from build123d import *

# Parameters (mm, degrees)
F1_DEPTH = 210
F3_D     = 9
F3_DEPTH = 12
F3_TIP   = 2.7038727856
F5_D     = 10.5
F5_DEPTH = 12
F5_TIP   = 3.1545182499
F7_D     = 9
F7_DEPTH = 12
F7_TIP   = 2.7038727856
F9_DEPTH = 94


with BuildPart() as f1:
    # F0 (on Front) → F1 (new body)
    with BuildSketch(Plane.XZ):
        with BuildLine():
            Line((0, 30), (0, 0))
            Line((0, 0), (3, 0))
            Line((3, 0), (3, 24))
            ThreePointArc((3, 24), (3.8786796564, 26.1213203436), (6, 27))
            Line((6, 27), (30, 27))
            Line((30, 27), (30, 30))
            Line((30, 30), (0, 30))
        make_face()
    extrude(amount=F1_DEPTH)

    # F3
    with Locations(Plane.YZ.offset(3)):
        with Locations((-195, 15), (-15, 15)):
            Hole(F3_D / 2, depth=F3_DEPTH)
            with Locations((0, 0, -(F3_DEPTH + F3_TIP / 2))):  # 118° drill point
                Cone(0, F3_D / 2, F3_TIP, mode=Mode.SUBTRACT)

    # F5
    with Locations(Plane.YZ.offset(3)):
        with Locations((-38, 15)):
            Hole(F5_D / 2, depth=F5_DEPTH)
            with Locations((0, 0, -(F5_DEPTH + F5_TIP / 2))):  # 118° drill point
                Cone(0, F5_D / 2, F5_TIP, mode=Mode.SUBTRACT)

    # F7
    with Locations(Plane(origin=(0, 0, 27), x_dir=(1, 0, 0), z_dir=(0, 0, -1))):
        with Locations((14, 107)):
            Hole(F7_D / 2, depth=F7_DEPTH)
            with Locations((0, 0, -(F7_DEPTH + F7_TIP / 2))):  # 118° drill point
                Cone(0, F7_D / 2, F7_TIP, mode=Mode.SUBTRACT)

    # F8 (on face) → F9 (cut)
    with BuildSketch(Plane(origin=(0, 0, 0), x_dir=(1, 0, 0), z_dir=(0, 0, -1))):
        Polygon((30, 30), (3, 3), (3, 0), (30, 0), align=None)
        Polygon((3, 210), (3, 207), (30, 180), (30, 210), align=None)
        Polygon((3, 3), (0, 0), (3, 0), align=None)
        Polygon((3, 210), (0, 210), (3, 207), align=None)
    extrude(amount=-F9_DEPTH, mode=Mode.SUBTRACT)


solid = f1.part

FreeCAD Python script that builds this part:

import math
import FreeCAD as App
import Part
import Sketcher


def add_polygon(sketch, points):
    """Adds a closed chain of lines whose ends are joined by coincident constraints."""
    first, n = sketch.GeometryCount, len(points)
    for a, b in zip(points, points[1:] + points[:1]):
        sketch.addGeometry(Part.LineSegment(App.Vector(*a, 0), App.Vector(*b, 0)), False)
    for i in range(n):
        sketch.addConstraint(Sketcher.Constraint("Coincident", first + i, 2, first + (i + 1) % n, 1))

doc = App.newDocument("Part")
body = doc.addObject("PartDesign::Body", "Body")

# Sketch on XZ plane
sketch1 = body.newObject("Sketcher::SketchObject", "Sketch")
sketch1.AttachmentSupport = (doc.getObject("XZ_Plane"), [""])
sketch1.MapMode = "FlatFace"
sketch1.addGeometry(Part.LineSegment(App.Vector(0, 30, 0), App.Vector(0, 0, 0)), False)
sketch1.addGeometry(Part.LineSegment(App.Vector(0, 0, 0), App.Vector(3, 0, 0)), False)
sketch1.addGeometry(Part.LineSegment(App.Vector(3, 0, 0), App.Vector(3, 24, 0)), False)
sketch1.addGeometry(Part.ArcOfCircle(Part.Circle(App.Vector(6, 24, 0), App.Vector(0, 0, 1), 3), math.radians(90), math.radians(180)), False)
sketch1.addGeometry(Part.LineSegment(App.Vector(6, 27, 0), App.Vector(30, 27, 0)), False)
sketch1.addGeometry(Part.LineSegment(App.Vector(30, 27, 0), App.Vector(30, 30, 0)), False)
sketch1.addGeometry(Part.LineSegment(App.Vector(30, 30, 0), App.Vector(0, 30, 0)), False)
sketch1.addConstraint(Sketcher.Constraint("Coincident", 0, 2, 1, 1))
sketch1.addConstraint(Sketcher.Constraint("Coincident", 1, 2, 2, 1))
sketch1.addConstraint(Sketcher.Constraint("Tangent", 2, 2, 3, 2))
sketch1.addConstraint(Sketcher.Constraint("Tangent", 3, 1, 4, 1))
sketch1.addConstraint(Sketcher.Constraint("Coincident", 4, 2, 5, 1))
sketch1.addConstraint(Sketcher.Constraint("Coincident", 5, 2, 6, 1))
sketch1.addConstraint(Sketcher.Constraint("Coincident", 6, 2, 0, 1))
sketch1.addConstraint(Sketcher.Constraint("Vertical", 0))
sketch1.addConstraint(Sketcher.Constraint("Horizontal", 1))
sketch1.addConstraint(Sketcher.Constraint("Vertical", 2))
sketch1.addConstraint(Sketcher.Constraint("Horizontal", 4))
sketch1.addConstraint(Sketcher.Constraint("Vertical", 5))
sketch1.addConstraint(Sketcher.Constraint("Horizontal", 6))
sketch1.addConstraint(Sketcher.Constraint("Coincident", 0, 2, -1, 1))
sketch1.addConstraint(Sketcher.Constraint("Equal", 6, 0))
sketch1.addConstraint(Sketcher.Constraint("Equal", 4, 2))
sketch1.addConstraint(Sketcher.Constraint("Radius", 3, 3.0))
sketch1.addConstraint(Sketcher.Constraint("DistanceX", 1, 1, 1, 2, 3.0))
sketch1.addConstraint(Sketcher.Constraint("DistanceX", 4, 1, 4, 2, 24.0))
pad1 = body.newObject("PartDesign::Pad", "Pad")
pad1.Profile = sketch1
pad1.Length = 210

# Sketch on YZ plane
sketch2 = body.newObject("Sketcher::SketchObject", "Sketch001")
sketch2.AttachmentSupport = (doc.getObject("YZ_Plane"), [""])
sketch2.MapMode = "FlatFace"
sketch2.AttachmentOffset = App.Placement(App.Vector(0, 0, 3), App.Rotation())
sketch2.addGeometry(Part.Circle(App.Vector(-195, 15, 0), App.Vector(0, 0, 1), 4.5), False)
sketch2.addGeometry(Part.Circle(App.Vector(-15, 15, 0), App.Vector(0, 0, 1), 4.5), False)
sketch2.addConstraint(Sketcher.Constraint("Equal", 0, 1))
sketch2.addConstraint(Sketcher.Constraint("Horizontal", 0, 3, 1, 3))
sketch2.addConstraint(Sketcher.Constraint("Diameter", 0, 9.0))
sketch2.addConstraint(Sketcher.Constraint("DistanceX", 0, 3, -1, 1, 195.0))
sketch2.addConstraint(Sketcher.Constraint("DistanceY", -1, 1, 0, 3, 15.0))
sketch2.addConstraint(Sketcher.Constraint("DistanceX", 1, 3, -1, 1, 15.0))
doc.recompute()
hole = body.newObject("PartDesign::Hole", "Hole")
hole.Profile = sketch2
hole.ThreadType = "None"
hole.Diameter = 9
hole.DepthType = "Dimension"
hole.Depth = 12
hole.DrillPoint = "Angled"
hole.DrillPointAngle = 118

# Sketch on YZ plane
sketch3 = body.newObject("Sketcher::SketchObject", "Sketch002")
sketch3.AttachmentSupport = (doc.getObject("YZ_Plane"), [""])
sketch3.MapMode = "FlatFace"
sketch3.AttachmentOffset = App.Placement(App.Vector(0, 0, 3), App.Rotation())
sketch3.addGeometry(Part.Circle(App.Vector(-38, 15, 0), App.Vector(0, 0, 1), 5), False)
sketch3.addConstraint(Sketcher.Constraint("Diameter", 0, 10.5))
sketch3.addConstraint(Sketcher.Constraint("DistanceX", 0, 3, -1, 1, 38.0))
sketch3.addConstraint(Sketcher.Constraint("DistanceY", -1, 1, 0, 3, 15.0))
doc.recompute()
hole2 = body.newObject("PartDesign::Hole", "Hole001")
hole2.Profile = sketch3
hole2.ThreadType = "None"
hole2.Diameter = 10.5
hole2.DepthType = "Dimension"
hole2.Depth = 12
hole2.DrillPoint = "Angled"
hole2.DrillPointAngle = 118

# Sketch on XY plane
sketch4 = body.newObject("Sketcher::SketchObject", "Sketch003")
sketch4.AttachmentSupport = (doc.getObject("XY_Plane"), [""])
sketch4.MapMode = "FlatFace"
sketch4.AttachmentOffset = App.Placement(App.Vector(0, 0, 27), App.Rotation())
sketch4.addGeometry(Part.Circle(App.Vector(14, -107, 0), App.Vector(0, 0, 1), 4.5), False)
sketch4.addConstraint(Sketcher.Constraint("Diameter", 0, 9.0))
sketch4.addConstraint(Sketcher.Constraint("DistanceX", -1, 1, 0, 3, 14.0))
sketch4.addConstraint(Sketcher.Constraint("DistanceY", 0, 3, -1, 1, 107.0))
doc.recompute()
hole3 = body.newObject("PartDesign::Hole", "Hole002")
hole3.Profile = sketch4
hole3.ThreadType = "None"
hole3.Diameter = 9
hole3.DepthType = "Dimension"
hole3.Depth = 12
hole3.DrillPoint = "Angled"
hole3.DrillPointAngle = 118
hole3.Reversed = True

# Sketch on XY plane
sketch5 = body.newObject("Sketcher::SketchObject", "Sketch004")
sketch5.AttachmentSupport = (doc.getObject("XY_Plane"), [""])
sketch5.MapMode = "FlatFace"
add_polygon(sketch5, [(30, -30), (0, 0), (30, 0)])  # lines 0-2
add_polygon(sketch5, [(30, -180), (30, -210), (0, -210)])  # lines 3-5
sketch5.addConstraint(Sketcher.Constraint("Horizontal", 1))
sketch5.addConstraint(Sketcher.Constraint("Vertical", 2))
sketch5.addConstraint(Sketcher.Constraint("Vertical", 3))
sketch5.addConstraint(Sketcher.Constraint("Horizontal", 4))
sketch5.addConstraint(Sketcher.Constraint("Coincident", 0, 2, -1, 1))
sketch5.addConstraint(Sketcher.Constraint("PointOnObject", 4, 2, -2))
sketch5.addConstraint(Sketcher.Constraint("Perpendicular", 0, 5))
sketch5.addConstraint(Sketcher.Constraint("Vertical", 2, 2, 3, 2))
sketch5.addConstraint(Sketcher.Constraint("Equal", 4, 2))
sketch5.addConstraint(Sketcher.Constraint("DistanceX", 1, 1, 1, 2, 30.0))
sketch5.addConstraint(Sketcher.Constraint("DistanceY", 3, 2, -1, 1, 210.0))
pocket1 = body.newObject("PartDesign::Pocket", "Pocket")
pocket1.Profile = sketch5
pocket1.Length = 94
pocket1.Reversed = True

doc.recompute()
